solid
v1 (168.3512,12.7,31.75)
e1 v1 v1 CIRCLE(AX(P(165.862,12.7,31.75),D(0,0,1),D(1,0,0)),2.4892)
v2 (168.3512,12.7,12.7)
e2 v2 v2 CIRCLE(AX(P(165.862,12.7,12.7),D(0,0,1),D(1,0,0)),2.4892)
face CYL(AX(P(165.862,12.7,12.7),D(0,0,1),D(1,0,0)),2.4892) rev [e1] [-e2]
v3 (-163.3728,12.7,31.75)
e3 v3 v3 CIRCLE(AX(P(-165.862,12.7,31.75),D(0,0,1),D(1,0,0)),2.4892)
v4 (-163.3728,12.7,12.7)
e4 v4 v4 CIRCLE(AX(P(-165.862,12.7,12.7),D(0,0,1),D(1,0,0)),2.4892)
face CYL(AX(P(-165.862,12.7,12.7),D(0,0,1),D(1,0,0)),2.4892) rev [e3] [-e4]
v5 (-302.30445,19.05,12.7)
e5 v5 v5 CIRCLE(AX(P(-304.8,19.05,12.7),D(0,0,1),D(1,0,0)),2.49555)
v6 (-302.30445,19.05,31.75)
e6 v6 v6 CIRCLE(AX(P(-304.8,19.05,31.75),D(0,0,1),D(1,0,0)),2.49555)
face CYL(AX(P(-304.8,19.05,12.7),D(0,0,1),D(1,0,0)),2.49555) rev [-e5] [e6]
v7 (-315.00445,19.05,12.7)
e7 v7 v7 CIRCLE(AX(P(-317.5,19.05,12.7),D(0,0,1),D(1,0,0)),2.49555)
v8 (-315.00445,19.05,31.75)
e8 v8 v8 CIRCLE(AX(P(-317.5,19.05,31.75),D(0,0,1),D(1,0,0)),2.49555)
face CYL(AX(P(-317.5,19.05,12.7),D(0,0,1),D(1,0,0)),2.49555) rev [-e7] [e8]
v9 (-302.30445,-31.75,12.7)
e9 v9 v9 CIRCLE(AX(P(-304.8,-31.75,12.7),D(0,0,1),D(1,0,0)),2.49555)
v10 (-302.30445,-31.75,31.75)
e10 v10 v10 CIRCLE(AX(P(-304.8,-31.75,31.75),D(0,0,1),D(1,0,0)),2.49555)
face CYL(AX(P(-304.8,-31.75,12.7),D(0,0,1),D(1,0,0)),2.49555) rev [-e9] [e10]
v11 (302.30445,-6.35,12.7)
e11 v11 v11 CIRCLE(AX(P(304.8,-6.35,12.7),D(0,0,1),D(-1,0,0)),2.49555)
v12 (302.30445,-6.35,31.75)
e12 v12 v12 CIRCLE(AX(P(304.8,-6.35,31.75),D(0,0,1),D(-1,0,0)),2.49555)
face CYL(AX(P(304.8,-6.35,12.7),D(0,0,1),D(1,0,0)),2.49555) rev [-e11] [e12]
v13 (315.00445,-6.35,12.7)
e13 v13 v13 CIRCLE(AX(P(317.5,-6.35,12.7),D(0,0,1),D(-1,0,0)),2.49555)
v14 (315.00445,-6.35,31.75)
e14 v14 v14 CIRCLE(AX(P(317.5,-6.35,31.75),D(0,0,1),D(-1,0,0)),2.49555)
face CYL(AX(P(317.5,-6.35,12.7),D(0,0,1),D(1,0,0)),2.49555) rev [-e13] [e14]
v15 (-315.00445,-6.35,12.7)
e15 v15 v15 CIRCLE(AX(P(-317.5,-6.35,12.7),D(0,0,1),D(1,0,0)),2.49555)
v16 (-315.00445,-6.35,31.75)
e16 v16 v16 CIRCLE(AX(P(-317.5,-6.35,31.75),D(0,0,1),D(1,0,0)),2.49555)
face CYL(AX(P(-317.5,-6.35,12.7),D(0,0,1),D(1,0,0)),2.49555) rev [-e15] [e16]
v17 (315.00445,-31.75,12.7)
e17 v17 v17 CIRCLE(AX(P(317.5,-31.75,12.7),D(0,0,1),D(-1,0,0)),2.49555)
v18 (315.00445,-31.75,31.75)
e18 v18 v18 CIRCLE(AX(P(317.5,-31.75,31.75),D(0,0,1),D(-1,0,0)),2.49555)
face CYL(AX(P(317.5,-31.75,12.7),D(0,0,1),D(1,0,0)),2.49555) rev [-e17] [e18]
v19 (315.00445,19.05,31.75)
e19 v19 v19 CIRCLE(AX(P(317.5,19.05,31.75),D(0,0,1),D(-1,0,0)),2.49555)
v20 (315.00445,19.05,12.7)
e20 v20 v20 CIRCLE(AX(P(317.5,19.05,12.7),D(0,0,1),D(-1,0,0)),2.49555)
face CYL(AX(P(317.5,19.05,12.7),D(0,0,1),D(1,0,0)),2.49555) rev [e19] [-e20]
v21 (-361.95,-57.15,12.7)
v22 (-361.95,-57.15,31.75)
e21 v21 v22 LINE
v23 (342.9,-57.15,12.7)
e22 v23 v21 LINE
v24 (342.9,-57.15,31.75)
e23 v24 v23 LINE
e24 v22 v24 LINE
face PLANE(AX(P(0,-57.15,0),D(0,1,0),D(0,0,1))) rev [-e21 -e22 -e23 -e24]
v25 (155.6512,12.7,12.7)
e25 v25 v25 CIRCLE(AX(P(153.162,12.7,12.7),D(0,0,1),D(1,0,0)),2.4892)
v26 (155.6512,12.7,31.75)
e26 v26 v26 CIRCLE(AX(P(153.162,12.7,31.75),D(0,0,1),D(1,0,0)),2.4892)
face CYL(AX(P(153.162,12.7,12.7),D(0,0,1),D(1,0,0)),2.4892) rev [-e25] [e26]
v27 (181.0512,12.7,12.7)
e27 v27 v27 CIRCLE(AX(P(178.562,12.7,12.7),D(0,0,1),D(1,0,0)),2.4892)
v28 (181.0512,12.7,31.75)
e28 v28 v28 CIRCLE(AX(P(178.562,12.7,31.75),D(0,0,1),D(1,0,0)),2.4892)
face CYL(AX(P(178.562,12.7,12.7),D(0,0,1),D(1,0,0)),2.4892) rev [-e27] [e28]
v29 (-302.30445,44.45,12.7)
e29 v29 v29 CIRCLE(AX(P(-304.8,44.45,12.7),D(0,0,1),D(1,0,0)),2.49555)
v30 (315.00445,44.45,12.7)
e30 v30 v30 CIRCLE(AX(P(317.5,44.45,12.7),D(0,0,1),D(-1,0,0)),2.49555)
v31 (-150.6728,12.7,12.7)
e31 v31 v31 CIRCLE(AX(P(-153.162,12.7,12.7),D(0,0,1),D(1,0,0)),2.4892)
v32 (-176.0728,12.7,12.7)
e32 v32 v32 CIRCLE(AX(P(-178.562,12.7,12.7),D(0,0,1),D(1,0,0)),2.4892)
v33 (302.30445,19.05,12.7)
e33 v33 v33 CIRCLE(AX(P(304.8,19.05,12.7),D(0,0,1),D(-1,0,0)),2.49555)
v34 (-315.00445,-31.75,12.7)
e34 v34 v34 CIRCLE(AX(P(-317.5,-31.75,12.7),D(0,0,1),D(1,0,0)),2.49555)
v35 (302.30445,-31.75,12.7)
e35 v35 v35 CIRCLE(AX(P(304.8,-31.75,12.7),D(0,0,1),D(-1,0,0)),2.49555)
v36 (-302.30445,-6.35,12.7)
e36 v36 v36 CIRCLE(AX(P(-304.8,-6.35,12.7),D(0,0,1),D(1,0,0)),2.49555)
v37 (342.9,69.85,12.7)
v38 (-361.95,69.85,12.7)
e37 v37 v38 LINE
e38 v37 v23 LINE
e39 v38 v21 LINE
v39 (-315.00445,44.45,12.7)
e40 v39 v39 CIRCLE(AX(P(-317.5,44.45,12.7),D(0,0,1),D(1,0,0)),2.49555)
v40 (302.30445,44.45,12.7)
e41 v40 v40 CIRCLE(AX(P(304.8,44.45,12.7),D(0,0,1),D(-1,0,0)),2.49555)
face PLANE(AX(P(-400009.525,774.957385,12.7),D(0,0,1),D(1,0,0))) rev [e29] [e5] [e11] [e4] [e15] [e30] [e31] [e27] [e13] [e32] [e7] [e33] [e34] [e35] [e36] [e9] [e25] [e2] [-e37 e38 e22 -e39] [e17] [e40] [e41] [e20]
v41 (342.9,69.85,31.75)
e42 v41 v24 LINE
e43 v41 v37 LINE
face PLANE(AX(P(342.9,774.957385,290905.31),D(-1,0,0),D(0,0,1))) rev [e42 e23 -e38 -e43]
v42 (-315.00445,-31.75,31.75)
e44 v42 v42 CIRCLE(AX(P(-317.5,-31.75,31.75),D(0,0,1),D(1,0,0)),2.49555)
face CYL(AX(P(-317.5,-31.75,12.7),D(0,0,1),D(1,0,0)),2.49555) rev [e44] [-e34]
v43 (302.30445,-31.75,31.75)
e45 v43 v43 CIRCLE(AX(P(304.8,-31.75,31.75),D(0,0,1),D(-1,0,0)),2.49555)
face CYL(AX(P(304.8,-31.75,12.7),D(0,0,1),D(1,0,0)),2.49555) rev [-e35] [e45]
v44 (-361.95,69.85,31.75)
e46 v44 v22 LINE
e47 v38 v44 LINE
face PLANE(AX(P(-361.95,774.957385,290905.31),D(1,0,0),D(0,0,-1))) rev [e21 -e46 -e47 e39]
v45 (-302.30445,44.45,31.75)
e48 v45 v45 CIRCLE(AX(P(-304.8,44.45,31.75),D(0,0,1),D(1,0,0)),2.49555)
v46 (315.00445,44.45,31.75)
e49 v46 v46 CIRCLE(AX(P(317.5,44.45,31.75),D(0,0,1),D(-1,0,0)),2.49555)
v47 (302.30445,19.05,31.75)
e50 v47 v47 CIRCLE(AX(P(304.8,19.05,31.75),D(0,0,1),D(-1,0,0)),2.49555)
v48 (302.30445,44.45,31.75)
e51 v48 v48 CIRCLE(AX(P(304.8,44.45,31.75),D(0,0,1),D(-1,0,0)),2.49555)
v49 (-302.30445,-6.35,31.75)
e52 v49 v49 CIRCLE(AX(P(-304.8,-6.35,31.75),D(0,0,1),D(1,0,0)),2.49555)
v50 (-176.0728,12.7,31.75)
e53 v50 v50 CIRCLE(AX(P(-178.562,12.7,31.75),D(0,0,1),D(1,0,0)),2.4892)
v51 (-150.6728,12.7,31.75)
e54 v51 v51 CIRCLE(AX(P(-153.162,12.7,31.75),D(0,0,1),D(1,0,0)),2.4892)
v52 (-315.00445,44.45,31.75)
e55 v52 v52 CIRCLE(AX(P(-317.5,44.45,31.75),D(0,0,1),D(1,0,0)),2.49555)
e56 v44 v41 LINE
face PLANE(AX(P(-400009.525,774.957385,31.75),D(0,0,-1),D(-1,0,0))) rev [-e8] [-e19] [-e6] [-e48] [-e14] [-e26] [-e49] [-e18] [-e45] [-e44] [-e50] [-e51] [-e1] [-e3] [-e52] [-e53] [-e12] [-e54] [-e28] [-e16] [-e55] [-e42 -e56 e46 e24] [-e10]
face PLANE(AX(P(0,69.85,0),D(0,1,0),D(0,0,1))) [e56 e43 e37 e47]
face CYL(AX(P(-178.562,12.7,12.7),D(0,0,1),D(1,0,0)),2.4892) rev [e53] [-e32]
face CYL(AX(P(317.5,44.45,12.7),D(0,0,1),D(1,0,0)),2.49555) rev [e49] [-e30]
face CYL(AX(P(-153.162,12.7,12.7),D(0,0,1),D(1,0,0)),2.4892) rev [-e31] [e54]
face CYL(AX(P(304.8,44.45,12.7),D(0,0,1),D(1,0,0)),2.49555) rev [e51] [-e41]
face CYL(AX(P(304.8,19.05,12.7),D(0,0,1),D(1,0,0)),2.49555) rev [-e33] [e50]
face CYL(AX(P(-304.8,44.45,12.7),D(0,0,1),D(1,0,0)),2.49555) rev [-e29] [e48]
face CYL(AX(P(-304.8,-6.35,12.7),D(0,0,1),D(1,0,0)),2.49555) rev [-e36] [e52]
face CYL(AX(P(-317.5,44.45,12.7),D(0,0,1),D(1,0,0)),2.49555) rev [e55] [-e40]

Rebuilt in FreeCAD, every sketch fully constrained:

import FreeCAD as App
import Part
import Sketcher

V = App.Vector
Q = App.Units.Quantity

doc = App.newDocument("Part")
body = doc.addObject("PartDesign::Body", "Body")

sketch1 = body.newObject("Sketcher::SketchObject", "Sketch")
sketch1.AttachmentSupport = (doc.getObject("XZ_Plane"), [""])
sketch1.MapMode = "FlatFace"
sketch1.AttachmentOffset = App.Placement(V(0, 0, 2.25 * 25.4), App.Rotation())
sketch1.addGeometry(Part.LineSegment(V(-362, 13, 0), V(-362, 32, 0)), False)
sketch1.addGeometry(Part.LineSegment(V(-362, 32, 0), V(343, 32, 0)), False)
sketch1.addGeometry(Part.LineSegment(V(343, 32, 0), V(343, 13, 0)), False)
sketch1.addGeometry(Part.LineSegment(V(343, 13, 0), V(-362, 13, 0)), False)
sketch1.addConstraint(Sketcher.Constraint("Coincident", 0, 2, 1, 1))
sketch1.addConstraint(Sketcher.Constraint("Coincident", 1, 2, 2, 1))
sketch1.addConstraint(Sketcher.Constraint("Coincident", 2, 2, 3, 1))
sketch1.addConstraint(Sketcher.Constraint("Coincident", 3, 2, 0, 1))
sketch1.addConstraint(Sketcher.Constraint("Vertical", 0))
sketch1.addConstraint(Sketcher.Constraint("Horizontal", 1))
sketch1.addConstraint(Sketcher.Constraint("Vertical", 2))
sketch1.addConstraint(Sketcher.Constraint("Horizontal", 3))
sketch1.addConstraint(Sketcher.Constraint("DistanceX", 1, 1, 1, 2, Q("27.75 in")))
sketch1.addConstraint(Sketcher.Constraint("DistanceY", 0, 1, 0, 2, Q("0.75 in")))
sketch1.addConstraint(Sketcher.Constraint("DistanceX", -1, 1, 1, 2, Q("13.5 in")))
sketch1.addConstraint(Sketcher.Constraint("DistanceY", -1, 1, 2, 2, Q("0.5 in")))
pad1 = body.newObject("PartDesign::Pad", "Pad")
pad1.Profile = sketch1
pad1.Length = Q("5 in")
pad1.Reversed = True

sketch2 = body.newObject("Sketcher::SketchObject", "Sketch001")
sketch2.AttachmentSupport = (doc.getObject("XY_Plane"), [""])
sketch2.MapMode = "FlatFace"
sketch2.AttachmentOffset = App.Placement(V(0, 0, 1.25 * 25.4), App.Rotation())
sketch2.addGeometry(Part.Circle(V(-317.5, 44.5, 0), V(0, 0, 1), 2.5), False)
sketch2.addGeometry(Part.Circle(V(-304.8, 44.5, 0), V(0, 0, 1), 2.5), False)
sketch2.addGeometry(Part.Circle(V(-317.5, 19.1, 0), V(0, 0, 1), 2.5), False)
sketch2.addGeometry(Part.Circle(V(-304.8, 19.1, 0), V(0, 0, 1), 2.5), False)
sketch2.addGeometry(Part.Circle(V(-317.5, -6.3, 0), V(0, 0, 1), 2.5), False)
sketch2.addGeometry(Part.Circle(V(-304.8, -6.3, 0), V(0, 0, 1), 2.5), False)
sketch2.addGeometry(Part.Circle(V(-317.5, -31.8, 0), V(0, 0, 1), 2.5), False)
sketch2.addGeometry(Part.Circle(V(-304.8, -31.8, 0), V(0, 0, 1), 2.5), False)
sketch2.addGeometry(Part.Circle(V(304.8, 44.5, 0), V(0, 0, 1), 2.5), False)
sketch2.addGeometry(Part.Circle(V(317.5, 44.5, 0), V(0, 0, 1), 2.5), False)
sketch2.addGeometry(Part.Circle(V(-178.6, 12.7, 0), V(0, 0, 1), 2.5), False)
sketch2.addGeometry(Part.Circle(V(-165.9, 12.7, 0), V(0, 0, 1), 2.5), False)
sketch2.addGeometry(Part.Circle(V(-153.2, 12.7, 0), V(0, 0, 1), 2.5), False)
sketch2.addGeometry(Part.Circle(V(153.2, 12.7, 0), V(0, 0, 1), 2.5), False)
sketch2.addGeometry(Part.Circle(V(165.9, 12.7, 0), V(0, 0, 1), 2.5), False)
sketch2.addGeometry(Part.Circle(V(178.6, 12.7, 0), V(0, 0, 1), 2.5), False)
sketch2.addGeometry(Part.Circle(V(317.5, 19.1, 0), V(0, 0, 1), 2.5), False)
sketch2.addGeometry(Part.Circle(V(304.8, 19.1, 0), V(0, 0, 1), 2.5), False)
sketch2.addGeometry(Part.Circle(V(317.5, -6.3, 0), V(0, 0, 1), 2.5), False)
sketch2.addGeometry(Part.Circle(V(304.8, -6.3, 0), V(0, 0, 1), 2.5), False)
sketch2.addGeometry(Part.Circle(V(317.5, -31.8, 0), V(0, 0, 1), 2.5), False)
sketch2.addGeometry(Part.Circle(V(304.8, -31.8, 0), V(0, 0, 1), 2.5), False)
sketch2.addConstraint(Sketcher.Constraint("Equal", 0, 1))
sketch2.addConstraint(Sketcher.Constraint("Equal", 1, 2))
sketch2.addConstraint(Sketcher.Constraint("Equal", 2, 3))
sketch2.addConstraint(Sketcher.Constraint("Equal", 3, 4))
sketch2.addConstraint(Sketcher.Constraint("Equal", 4, 5))
sketch2.addConstraint(Sketcher.Constraint("Equal", 5, 6))
sketch2.addConstraint(Sketcher.Constraint("Equal", 6, 7))
sketch2.addConstraint(Sketcher.Constraint("Equal", 7, 8))
sketch2.addConstraint(Sketcher.Constraint("Equal", 8, 9))
sketch2.addConstraint(Sketcher.Constraint("Equal", 10, 11))
sketch2.addConstraint(Sketcher.Constraint("Equal", 11, 12))
sketch2.addConstraint(Sketcher.Constraint("Equal", 12, 13))
sketch2.addConstraint(Sketcher.Constraint("Equal", 13, 14))
sketch2.addConstraint(Sketcher.Constraint("Equal", 14, 15))
sketch2.addConstraint(Sketcher.Constraint("Equal", 9, 16))
sketch2.addConstraint(Sketcher.Constraint("Equal", 16, 17))
sketch2.addConstraint(Sketcher.Constraint("Equal", 17, 18))
sketch2.addConstraint(Sketcher.Constraint("Equal", 18, 19))
sketch2.addConstraint(Sketcher.Constraint("Equal", 19, 20))
sketch2.addConstraint(Sketcher.Constraint("Equal", 20, 21))
sketch2.addConstraint(Sketcher.Constraint("Symmetric", 1, 3, 8, 3, -2))
sketch2.addConstraint(Sketcher.Constraint("Symmetric", 0, 3, 9, 3, -2))
sketch2.addConstraint(Sketcher.Constraint("Symmetric", 12, 3, 13, 3, -2))
sketch2.addConstraint(Sketcher.Constraint("Symmetric", 11, 3, 14, 3, -2))
sketch2.addConstraint(Sketcher.Constraint("Symmetric", 10, 3, 15, 3, -2))
sketch2.addConstraint(Sketcher.Constraint("Symmetric", 2, 3, 16, 3, -2))
sketch2.addConstraint(Sketcher.Constraint("Symmetric", 3, 3, 17, 3, -2))
sketch2.addConstraint(Sketcher.Constraint("Symmetric", 4, 3, 18, 3, -2))
sketch2.addConstraint(Sketcher.Constraint("Symmetric", 5, 3, 19, 3, -2))
sketch2.addConstraint(Sketcher.Constraint("Symmetric", 6, 3, 20, 3, -2))
sketch2.addConstraint(Sketcher.Constraint("Symmetric", 7, 3, 21, 3, -2))
sketch2.addConstraint(Sketcher.Constraint("Horizontal", 0, 3, 1, 3))
sketch2.addConstraint(Sketcher.Constraint("Horizontal", 2, 3, 3, 3))
sketch2.addConstraint(Sketcher.Constraint("Horizontal", 4, 3, 5, 3))
sketch2.addConstraint(Sketcher.Constraint("Horizontal", 6, 3, 7, 3))
sketch2.addConstraint(Sketcher.Constraint("Horizontal", 10, 3, 11, 3))
sketch2.addConstraint(Sketcher.Constraint("Horizontal", 11, 3, 12, 3))
sketch2.addConstraint(Sketcher.Constraint("Vertical", 0, 3, 2, 3))
sketch2.addConstraint(Sketcher.Constraint("Vertical", 1, 3, 3, 3))
sketch2.addConstraint(Sketcher.Constraint("Vertical", 2, 3, 4, 3))
sketch2.addConstraint(Sketcher.Constraint("Vertical", 3, 3, 5, 3))
sketch2.addConstraint(Sketcher.Constraint("Vertical", 4, 3, 6, 3))
sketch2.addConstraint(Sketcher.Constraint("Vertical", 5, 3, 7, 3))
sketch2.addConstraint(Sketcher.Constraint("Diameter", 10, Q("0.196 in")))
sketch2.addConstraint(Sketcher.Constraint("DistanceX", 1, 3, -1, 1, Q("12 in")))
sketch2.addConstraint(Sketcher.Constraint("DistanceY", 2, 3, 0, 3, Q("1 in")))
sketch2.addConstraint(Sketcher.Constraint("DistanceY", 4, 3, 2, 3, Q("1 in")))
sketch2.addConstraint(Sketcher.Constraint("DistanceY", 6, 3, 4, 3, Q("1 in")))
sketch2.addConstraint(Sketcher.Constraint("DistanceX", 10, 3, 12, 3, Q("1 in")))
sketch2.addConstraint(Sketcher.Constraint("Diameter", 0, Q("0.1965 in")))
sketch2.addConstraint(Sketcher.Constraint("DistanceX", 0, 3, -1, 1, Q("12.5 in")))
sketch2.addConstraint(Sketcher.Constraint("DistanceY", -1, 1, 10, 3, Q("0.5 in")))
sketch2.addConstraint(Sketcher.Constraint("DistanceX", 10, 3, 11, 3, Q("0.5 in")))
sketch2.addConstraint(Sketcher.Constraint("DistanceY", -1, 1, 0, 3, Q("1.75 in")))
sketch2.addConstraint(Sketcher.Constraint("DistanceX", 10, 3, -1, 1, Q("7.03 in")))
pocket1 = body.newObject("PartDesign::Pocket", "Pocket")
pocket1.Profile = sketch2
pocket1.Type = "ThroughAll"

doc.recompute()
